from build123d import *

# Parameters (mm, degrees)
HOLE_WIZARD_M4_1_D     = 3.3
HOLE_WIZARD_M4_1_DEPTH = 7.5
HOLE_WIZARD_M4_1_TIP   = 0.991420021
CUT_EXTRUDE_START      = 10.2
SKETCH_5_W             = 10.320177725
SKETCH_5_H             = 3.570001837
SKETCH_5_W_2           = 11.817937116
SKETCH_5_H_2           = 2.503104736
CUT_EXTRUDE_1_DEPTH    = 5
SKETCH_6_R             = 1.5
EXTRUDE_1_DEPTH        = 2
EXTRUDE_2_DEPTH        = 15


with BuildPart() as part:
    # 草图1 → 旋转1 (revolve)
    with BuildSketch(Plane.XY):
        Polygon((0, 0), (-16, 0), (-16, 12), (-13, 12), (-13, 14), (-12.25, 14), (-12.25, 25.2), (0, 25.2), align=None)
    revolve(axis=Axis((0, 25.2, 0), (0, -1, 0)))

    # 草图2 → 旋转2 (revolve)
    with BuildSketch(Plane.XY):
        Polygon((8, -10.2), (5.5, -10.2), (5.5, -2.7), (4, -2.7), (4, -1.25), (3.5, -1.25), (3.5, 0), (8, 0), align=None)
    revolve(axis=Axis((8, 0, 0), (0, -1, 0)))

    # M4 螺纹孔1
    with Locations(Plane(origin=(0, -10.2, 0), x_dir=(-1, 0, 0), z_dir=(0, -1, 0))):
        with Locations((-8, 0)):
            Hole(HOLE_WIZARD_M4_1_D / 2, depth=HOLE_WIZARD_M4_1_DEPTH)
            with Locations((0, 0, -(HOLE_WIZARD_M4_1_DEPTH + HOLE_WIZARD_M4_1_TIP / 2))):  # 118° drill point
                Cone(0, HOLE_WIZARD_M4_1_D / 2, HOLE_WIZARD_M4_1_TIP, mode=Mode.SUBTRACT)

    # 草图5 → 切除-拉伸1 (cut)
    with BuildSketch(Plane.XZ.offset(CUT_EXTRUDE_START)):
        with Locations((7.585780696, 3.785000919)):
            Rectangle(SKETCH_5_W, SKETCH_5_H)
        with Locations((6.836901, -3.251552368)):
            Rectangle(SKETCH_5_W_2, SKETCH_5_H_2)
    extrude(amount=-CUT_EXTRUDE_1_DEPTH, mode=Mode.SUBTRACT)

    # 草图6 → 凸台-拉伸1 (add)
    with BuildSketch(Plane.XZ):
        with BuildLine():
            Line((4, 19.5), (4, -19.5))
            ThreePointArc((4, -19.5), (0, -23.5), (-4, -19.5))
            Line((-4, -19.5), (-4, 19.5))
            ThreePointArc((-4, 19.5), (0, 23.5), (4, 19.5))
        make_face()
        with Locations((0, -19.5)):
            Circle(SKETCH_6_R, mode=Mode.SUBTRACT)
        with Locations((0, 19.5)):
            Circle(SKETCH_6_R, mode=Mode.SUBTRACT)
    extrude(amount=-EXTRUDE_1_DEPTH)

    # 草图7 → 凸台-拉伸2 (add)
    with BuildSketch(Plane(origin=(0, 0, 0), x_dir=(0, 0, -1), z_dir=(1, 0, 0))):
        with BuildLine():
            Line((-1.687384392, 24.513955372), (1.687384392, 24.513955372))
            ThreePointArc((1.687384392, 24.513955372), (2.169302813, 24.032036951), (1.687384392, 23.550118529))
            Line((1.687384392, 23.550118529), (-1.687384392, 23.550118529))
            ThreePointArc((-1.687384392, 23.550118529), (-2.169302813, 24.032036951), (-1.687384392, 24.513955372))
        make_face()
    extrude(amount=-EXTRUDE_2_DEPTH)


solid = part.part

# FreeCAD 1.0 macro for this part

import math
import FreeCAD as App
import Part
import Sketcher

doc = App.newDocument("Part")
params = doc.addObject("Spreadsheet::Sheet", "Params")
for row, (alias, value) in enumerate([
    ("sketch1_width", "16 mm"),
    ("sketch1_width2", "3 mm"),
    ("sketch1_height", "2 mm"),
    ("sketch1_height2", "12 mm"),
    ("sketch1_height3", "25.2 mm"),
    ("revolution_angle", "360 deg"),
    ("sketch2_width", "2.5 mm"),
    ("sketch2_width2", "4.5 mm"),
    ("sketch2_width3", "0.5 mm"),
    ("sketch2_height", "10.2 mm"),
    ("sketch2_height2", "7.5 mm"),
    ("revolution2_angle", "360 deg"),
    ("sketch3_diameter", "3.3 mm"),
    ("hole_diameter", "3.3 mm"),
    ("hole_depth", "7.5 mm"),
    ("sketch4_height", "3.570002 mm"),
    ("pocket1_length", "5 mm"),
    ("sketch5_diameter", "3 mm"),
    ("sketch5_radius", "4 mm"),
    ("sketch5_height", "39 mm"),
    ("pad1_length", "2 mm"),
    ("pad2_length", "15 mm"),
], start=1):
    params.set(f"A{row}", alias)
    params.set(f"B{row}", "=" + value)
    params.setAlias(f"B{row}", alias)

body = doc.addObject("PartDesign::Body", "Body")

# Sketch on XY plane
sketch1 = body.newObject("Sketcher::SketchObject", "Sketch")
sketch1.AttachmentSupport = (doc.getObject("XY_Plane"), [""])
sketch1.MapMode = "FlatFace"
sketch1.addGeometry(Part.LineSegment(App.Vector(-16, 0, 0), App.Vector(0, 0, 0)), False)
sketch1.addGeometry(Part.LineSegment(App.Vector(0, 0, 0), App.Vector(0, 25.2, 0)), False)
sketch1.addGeometry(Part.LineSegment(App.Vector(0, 25.2, 0), App.Vector(-12.25, 25.2, 0)), False)
sketch1.addGeometry(Part.LineSegment(App.Vector(-12.25, 25.2, 0), App.Vector(-12.25, 14, 0)), False)
sketch1.addGeometry(Part.LineSegment(App.Vector(-12.25, 14, 0), App.Vector(-13, 14, 0)), False)
sketch1.addGeometry(Part.LineSegment(App.Vector(-13, 14, 0), App.Vector(-13, 12, 0)), False)
sketch1.addGeometry(Part.LineSegment(App.Vector(-13, 12, 0), App.Vector(-16, 12, 0)), False)
sketch1.addGeometry(Part.LineSegment(App.Vector(-16, 12, 0), App.Vector(-16, 0, 0)), False)
sketch1.addConstraint(Sketcher.Constraint("Coincident", 0, 2, 1, 1))
sketch1.addConstraint(Sketcher.Constraint("Coincident", 1, 2, 2, 1))
sketch1.addConstraint(Sketcher.Constraint("Coincident", 2, 2, 3, 1))
sketch1.addConstraint(Sketcher.Constraint("Coincident", 3, 2, 4, 1))
sketch1.addConstraint(Sketcher.Constraint("Coincident", 4, 2, 5, 1))
sketch1.addConstraint(Sketcher.Constraint("Coincident", 5, 2, 6, 1))
sketch1.addConstraint(Sketcher.Constraint("Coincident", 6, 2, 7, 1))
sketch1.addConstraint(Sketcher.Constraint("Coincident", 7, 2, 0, 1))
sketch1.addConstraint(Sketcher.Constraint("Horizontal", 0))
sketch1.addConstraint(Sketcher.Constraint("Vertical", 1))
sketch1.addConstraint(Sketcher.Constraint("Horizontal", 2))
sketch1.addConstraint(Sketcher.Constraint("Vertical", 3))
sketch1.addConstraint(Sketcher.Constraint("Horizontal", 4))
sketch1.addConstraint(Sketcher.Constraint("Vertical", 5))
sketch1.addConstraint(Sketcher.Constraint("Horizontal", 6))
sketch1.addConstraint(Sketcher.Constraint("Vertical", 7))
sketch1.addConstraint(Sketcher.Constraint("Coincident", 0, 2, -1, 1))
sketch1.addConstraint(Sketcher.Constraint("DistanceX", 0, 1, 0, 2, 16.0))
sketch1.addConstraint(Sketcher.Constraint("DistanceX", 6, 2, 6, 1, 3.0))
sketch1.addConstraint(Sketcher.Constraint("DistanceY", 5, 2, 5, 1, 2.0))
sketch1.addConstraint(Sketcher.Constraint("DistanceY", 7, 2, 7, 1, 12.0))
sketch1.addConstraint(Sketcher.Constraint("DistanceY", 1, 1, 1, 2, 25.2))
sketch1.addConstraint(Sketcher.Constraint("DistanceX", 2, 2, 2, 1, 12.25))
sketch1.setExpression("Constraints[17]", "Params.sketch1_width")
sketch1.setExpression("Constraints[18]", "Params.sketch1_width2")
sketch1.setExpression("Constraints[19]", "Params.sketch1_height")
sketch1.setExpression("Constraints[20]", "Params.sketch1_height2")
sketch1.setExpression("Constraints[21]", "Params.sketch1_height3")
revolution = body.newObject("PartDesign::Revolution", "Revolution")
revolution.Profile = sketch1
revolution.ReferenceAxis = (sketch1, ["V_Axis"])
revolution.setExpression("Angle", "Params.revolution_angle")

# Sketch on XY plane
sketch2 = body.newObject("Sketcher::SketchObject", "Sketch001")
sketch2.AttachmentSupport = (doc.getObject("XY_Plane"), [""])
sketch2.MapMode = "FlatFace"
sketch2.addGeometry(Part.LineSegment(App.Vector(5.5, -10.2, 0), App.Vector(8, -10.2, 0)), False)
sketch2.addGeometry(Part.LineSegment(App.Vector(8, -10.2, 0), App.Vector(8, 0, 0)), False)
sketch2.addGeometry(Part.LineSegment(App.Vector(8, 0, 0), App.Vector(3.5, 0, 0)), False)
sketch2.addGeometry(Part.LineSegment(App.Vector(3.5, 0, 0), App.Vector(3.5, -1.25, 0)), False)
sketch2.addGeometry(Part.LineSegment(App.Vector(3.5, -1.25, 0), App.Vector(4, -1.25, 0)), False)
sketch2.addGeometry(Part.LineSegment(App.Vector(4, -1.25, 0), App.Vector(4, -2.7, 0)), False)
sketch2.addGeometry(Part.LineSegment(App.Vector(4, -2.7, 0), App.Vector(5.5, -2.7, 0)), False)
sketch2.addGeometry(Part.LineSegment(App.Vector(5.5, -2.7, 0), App.Vector(5.5, -10.2, 0)), False)
sketch2.addGeometry(Part.LineSegment(App.Vector(8, 0, 0), App.Vector(8, -10.2, 0)), True)  # axis
sketch2.addConstraint(Sketcher.Constraint("Coincident", 0, 2, 1, 1))
sketch2.addConstraint(Sketcher.Constraint("Coincident", 1, 2, 2, 1))
sketch2.addConstraint(Sketcher.Constraint("Coincident", 2, 2, 3, 1))
sketch2.addConstraint(Sketcher.Constraint("Coincident", 3, 2, 4, 1))
sketch2.addConstraint(Sketcher.Constraint("Coincident", 4, 2, 5, 1))
sketch2.addConstraint(Sketcher.Constraint("Coincident", 5, 2, 6, 1))
sketch2.addConstraint(Sketcher.Constraint("Coincident", 6, 2, 7, 1))
sketch2.addConstraint(Sketcher.Constraint("Coincident", 7, 2, 0, 1))
sketch2.addConstraint(Sketcher.Constraint("Horizontal", 0))
sketch2.addConstraint(Sketcher.Constraint("Vertical", 1))
sketch2.addConstraint(Sketcher.Constraint("Horizontal", 2))
sketch2.addConstraint(Sketcher.Constraint("Vertical", 3))
sketch2.addConstraint(Sketcher.Constraint("Horizontal", 4))
sketch2.addConstraint(Sketcher.Constraint("Vertical", 5))
sketch2.addConstraint(Sketcher.Constraint("Horizontal", 6))
sketch2.addConstraint(Sketcher.Constraint("Vertical", 7))
sketch2.addConstraint(Sketcher.Constraint("Vertical", 8))
sketch2.addConstraint(Sketcher.Constraint("Coincident", 8, 1, 1, 2))
sketch2.addConstraint(Sketcher.Constraint("PointOnObject", 1, 2, -1))
sketch2.addConstraint(Sketcher.Constraint("Horizontal", 7, 2, 8, 2))
sketch2.addConstraint(Sketcher.Constraint("DistanceX", 0, 1, 0, 2, 2.5))
sketch2.addConstraint(Sketcher.Constraint("DistanceX", 2, 2, 2, 1, 4.5))
sketch2.addConstraint(Sketcher.Constraint("DistanceX", 4, 1, 4, 2, 0.5))
sketch2.addConstraint(Sketcher.Constraint("DistanceY", 1, 1, 1, 2, 10.2))
sketch2.addConstraint(Sketcher.Constraint("DistanceY", 7, 2, 7, 1, 7.5))
sketch2.addConstraint(Sketcher.Constraint("DistanceX", -1, 1, 0, 2, 8.0))
sketch2.addConstraint(Sketcher.Constraint("DistanceY", 3, 2, 3, 1, 1.25))
sketch2.setExpression("Constraints[20]", "Params.sketch2_width")
sketch2.setExpression("Constraints[21]", "Params.sketch2_width2")
sketch2.setExpression("Constraints[22]", "Params.sketch2_width3")
sketch2.setExpression("Constraints[23]", "Params.sketch2_height")
sketch2.setExpression("Constraints[24]", "Params.sketch2_height2")
revolution2 = body.newObject("PartDesign::Revolution", "Revolution001")
revolution2.Profile = sketch2
revolution2.ReferenceAxis = (sketch2, ["Axis0"])
revolution2.setExpression("Angle", "Params.revolution2_angle")

# Sketch on XZ plane
sketch3 = body.newObject("Sketcher::SketchObject", "Sketch002")
sketch3.AttachmentSupport = (doc.getObject("XZ_Plane"), [""])
sketch3.MapMode = "FlatFace"
sketch3.AttachmentOffset = App.Placement(App.Vector(0, 0, 10.2), App.Rotation())
sketch3.addGeometry(Part.Circle(App.Vector(8, 0, 0), App.Vector(0, 0, 1), 1.65), False)
sketch3.addConstraint(Sketcher.Constraint("PointOnObject", 0, 3, -1))
sketch3.addConstraint(Sketcher.Constraint("Diameter", 0, 3.3))
sketch3.addConstraint(Sketcher.Constraint("DistanceX", -1, 1, 0, 3, 8.0))
sketch3.setExpression("Constraints[1]", "Params.sketch3_diameter")
doc.recompute()
hole = body.newObject("PartDesign::Hole", "Hole")
hole.Profile = sketch3
hole.ThreadType = "None"
hole.setExpression("Diameter", "Params.hole_diameter")
hole.DepthType = "Dimension"
hole.setExpression("Depth", "Params.hole_depth")
hole.DrillPoint = "Angled"
hole.DrillPointAngle = 118

# Sketch on XZ plane
sketch4 = body.newObject("Sketcher::SketchObject", "Sketch003")
sketch4.AttachmentSupport = (doc.getObject("XZ_Plane"), [""])
sketch4.MapMode = "FlatFace"
sketch4.AttachmentOffset = App.Placement(App.Vector(0, 0, 10.2), App.Rotation())
sketch4.addGeometry(Part.LineSegment(App.Vector(2.425692, 5.570002, 0), App.Vector(2.425692, 2, 0)), False)
sketch4.addGeometry(Part.LineSegment(App.Vector(2.425692, 2, 0), App.Vector(12.74587, 2, 0)), False)
sketch4.addGeometry(Part.LineSegment(App.Vector(12.74587, 2, 0), App.Vector(12.74587, 5.570002, 0)), False)
sketch4.addGeometry(Part.LineSegment(App.Vector(12.74587, 5.570002, 0), App.Vector(2.425692, 5.570002, 0)), False)
sketch4.addGeometry(Part.LineSegment(App.Vector(0.927932, -2, 0), App.Vector(0.927932, -4.503105, 0)), False)
sketch4.addGeometry(Part.LineSegment(App.Vector(0.927932, -4.503105, 0), App.Vector(12.74587, -4.503105, 0)), False)
sketch4.addGeometry(Part.LineSegment(App.Vector(12.74587, -4.503105, 0), App.Vector(12.74587, -2, 0)), False)
sketch4.addGeometry(Part.LineSegment(App.Vector(12.74587, -2, 0), App.Vector(0.927932, -2, 0)), False)
sketch4.addConstraint(Sketcher.Constraint("Coincident", 0, 2, 1, 1))
sketch4.addConstraint(Sketcher.Constraint("Coincident", 1, 2, 2, 1))
sketch4.addConstraint(Sketcher.Constraint("Coincident", 2, 2, 3, 1))
sketch4.addConstraint(Sketcher.Constraint("Coincident", 3, 2, 0, 1))
sketch4.addConstraint(Sketcher.Constraint("Coincident", 4, 2, 5, 1))
sketch4.addConstraint(Sketcher.Constraint("Coincident", 5, 2, 6, 1))
sketch4.addConstraint(Sketcher.Constraint("Coincident", 6, 2, 7, 1))
sketch4.addConstraint(Sketcher.Constraint("Coincident", 7, 2, 4, 1))
sketch4.addConstraint(Sketcher.Constraint("Vertical", 0))
sketch4.addConstraint(Sketcher.Constraint("Horizontal", 1))
sketch4.addConstraint(Sketcher.Constraint("Vertical", 2))
sketch4.addConstraint(Sketcher.Constraint("Horizontal", 3))
sketch4.addConstraint(Sketcher.Constraint("Vertical", 4))
sketch4.addConstraint(Sketcher.Constraint("Horizontal", 5))
sketch4.addConstraint(Sketcher.Constraint("Vertical", 6))
sketch4.addConstraint(Sketcher.Constraint("Horizontal", 7))
sketch4.addConstraint(Sketcher.Constraint("Symmetric", 1, 2, 6, 2, -1))
sketch4.addConstraint(Sketcher.Constraint("DistanceY", -1, 1, 0, 2, 2.0))
sketch4.addConstraint(Sketcher.Constraint("DistanceY", 0, 2, 0, 1, 3.570002))
sketch4.addConstraint(Sketcher.Constraint("DistanceX", 1, 1, 1, 2, 10.320178))
sketch4.addConstraint(Sketcher.Constraint("DistanceX", 5, 1, 5, 2, 11.817937))
sketch4.addConstraint(Sketcher.Constraint("DistanceY", 4, 2, 4, 1, 2.503105))
sketch4.addConstraint(Sketcher.Constraint("DistanceX", -1, 1, 0, 2, 2.425692))
sketch4.setExpression("Constraints[18]", "Params.sketch4_height")
pocket1 = body.newObject("PartDesign::Pocket", "Pocket")
pocket1.Profile = sketch4
pocket1.setExpression("Length", "Params.pocket1_length")

# Sketch on XZ plane
sketch5 = body.newObject("Sketcher::SketchObject", "Sketch004")
sketch5.AttachmentSupport = (doc.getObject("XZ_Plane"), [""])
sketch5.MapMode = "FlatFace"
sketch5.addGeometry(Part.LineSegment(App.Vector(4, -19.5, 0), App.Vector(4, 19.5, 0)), False)
sketch5.addGeometry(Part.ArcOfCircle(Part.Circle(App.Vector(0, 19.5, 0), App.Vector(0, 0, 1), 4), math.radians(0), math.radians(180)), False)
sketch5.addGeometry(Part.LineSegment(App.Vector(-4, 19.5, 0), App.Vector(-4, -19.5, 0)), False)
sketch5.addGeometry(Part.ArcOfCircle(Part.Circle(App.Vector(0, -19.5, 0), App.Vector(0, 0, 1), 4), math.radians(180), math.radians(360)), False)
sketch5.addGeometry(Part.Circle(App.Vector(0, -19.5, 0), App.Vector(0, 0, 1), 1.5), False)
sketch5.addGeometry(Part.Circle(App.Vector(0, 19.5, 0), App.Vector(0, 0, 1), 1.5), False)
sketch5.addConstraint(Sketcher.Constraint("Tangent", 0, 2, 1, 1))
sketch5.addConstraint(Sketcher.Constraint("Tangent", 1, 2, 2, 1))
sketch5.addConstraint(Sketcher.Constraint("Tangent", 2, 2, 3, 1))
sketch5.addConstraint(Sketcher.Constraint("Tangent", 3, 2, 0, 1))
sketch5.addConstraint(Sketcher.Constraint("Vertical", 0))
sketch5.addConstraint(Sketcher.Constraint("Vertical", 2))
sketch5.addConstraint(Sketcher.Constraint("Coincident", 4, 3, 3, 3))
sketch5.addConstraint(Sketcher.Constraint("Coincident", 5, 3, 1, 3))
sketch5.addConstraint(Sketcher.Constraint("Equal", 4, 5))
sketch5.addConstraint(Sketcher.Constraint("Symmetric", 1, 3, 3, 3, -1, 1))
sketch5.addConstraint(Sketcher.Constraint("Diameter", 4, 3.0))
sketch5.addConstraint(Sketcher.Constraint("Radius", 1, 4.0))
sketch5.addConstraint(Sketcher.Constraint("DistanceY", 0, 1, 0, 2, 39.0))
sketch5.setExpression("Constraints[10]", "Params.sketch5_diameter")
sketch5.setExpression("Constraints[11]", "Params.sketch5_radius")
sketch5.setExpression("Constraints[12]", "Params.sketch5_height")
pad1 = body.newObject("PartDesign::Pad", "Pad")
pad1.Profile = sketch5
pad1.setExpression("Length", "Params.pad1_length")
pad1.Reversed = True

# Sketch on YZ plane
sketch6 = body.newObject("Sketcher::SketchObject", "Sketch005")
sketch6.AttachmentSupport = (doc.getObject("YZ_Plane"), [""])
sketch6.MapMode = "FlatFace"
sketch6.addGeometry(Part.LineSegment(App.Vector(24.513955, -1.687384, 0), App.Vector(24.513955, 1.687384, 0)), False)
sketch6.addGeometry(Part.ArcOfCircle(Part.Circle(App.Vector(24.032037, 1.687384, 0), App.Vector(0, 0, 1), 0.481918), math.radians(0), math.radians(180)), False)
sketch6.addGeometry(Part.LineSegment(App.Vector(23.550119, 1.687384, 0), App.Vector(23.550119, -1.687384, 0)), False)
sketch6.addGeometry(Part.ArcOfCircle(Part.Circle(App.Vector(24.032037, -1.687384, 0), App.Vector(0, 0, 1), 0.481918), math.radians(-180), math.radians(0)), False)
sketch6.addConstraint(Sketcher.Constraint("Tangent", 0, 2, 1, 1))
sketch6.addConstraint(Sketcher.Constraint("Tangent", 1, 2, 2, 1))
sketch6.addConstraint(Sketcher.Constraint("Tangent", 2, 2, 3, 1))
sketch6.addConstraint(Sketcher.Constraint("Tangent", 3, 2, 0, 1))
sketch6.addConstraint(Sketcher.Constraint("Vertical", 0))
sketch6.addConstraint(Sketcher.Constraint("Vertical", 2))
sketch6.addConstraint(Sketcher.Constraint("Radius", 1, 0.481918))
sketch6.addConstraint(Sketcher.Constraint("DistanceY", 0, 1, 0, 2, 3.374769))
sketch6.addConstraint(Sketcher.Constraint("DistanceX", -1, 1, 1, 2, 23.550119))
sketch6.addConstraint(Sketcher.Constraint("DistanceY", -1, 1, 1, 3, 1.687384))
pad2 = body.newObject("PartDesign::Pad", "Pad001")
pad2.Profile = sketch6
pad2.setExpression("Length", "Params.pad2_length")
pad2.Reversed = True

doc.recompute()
